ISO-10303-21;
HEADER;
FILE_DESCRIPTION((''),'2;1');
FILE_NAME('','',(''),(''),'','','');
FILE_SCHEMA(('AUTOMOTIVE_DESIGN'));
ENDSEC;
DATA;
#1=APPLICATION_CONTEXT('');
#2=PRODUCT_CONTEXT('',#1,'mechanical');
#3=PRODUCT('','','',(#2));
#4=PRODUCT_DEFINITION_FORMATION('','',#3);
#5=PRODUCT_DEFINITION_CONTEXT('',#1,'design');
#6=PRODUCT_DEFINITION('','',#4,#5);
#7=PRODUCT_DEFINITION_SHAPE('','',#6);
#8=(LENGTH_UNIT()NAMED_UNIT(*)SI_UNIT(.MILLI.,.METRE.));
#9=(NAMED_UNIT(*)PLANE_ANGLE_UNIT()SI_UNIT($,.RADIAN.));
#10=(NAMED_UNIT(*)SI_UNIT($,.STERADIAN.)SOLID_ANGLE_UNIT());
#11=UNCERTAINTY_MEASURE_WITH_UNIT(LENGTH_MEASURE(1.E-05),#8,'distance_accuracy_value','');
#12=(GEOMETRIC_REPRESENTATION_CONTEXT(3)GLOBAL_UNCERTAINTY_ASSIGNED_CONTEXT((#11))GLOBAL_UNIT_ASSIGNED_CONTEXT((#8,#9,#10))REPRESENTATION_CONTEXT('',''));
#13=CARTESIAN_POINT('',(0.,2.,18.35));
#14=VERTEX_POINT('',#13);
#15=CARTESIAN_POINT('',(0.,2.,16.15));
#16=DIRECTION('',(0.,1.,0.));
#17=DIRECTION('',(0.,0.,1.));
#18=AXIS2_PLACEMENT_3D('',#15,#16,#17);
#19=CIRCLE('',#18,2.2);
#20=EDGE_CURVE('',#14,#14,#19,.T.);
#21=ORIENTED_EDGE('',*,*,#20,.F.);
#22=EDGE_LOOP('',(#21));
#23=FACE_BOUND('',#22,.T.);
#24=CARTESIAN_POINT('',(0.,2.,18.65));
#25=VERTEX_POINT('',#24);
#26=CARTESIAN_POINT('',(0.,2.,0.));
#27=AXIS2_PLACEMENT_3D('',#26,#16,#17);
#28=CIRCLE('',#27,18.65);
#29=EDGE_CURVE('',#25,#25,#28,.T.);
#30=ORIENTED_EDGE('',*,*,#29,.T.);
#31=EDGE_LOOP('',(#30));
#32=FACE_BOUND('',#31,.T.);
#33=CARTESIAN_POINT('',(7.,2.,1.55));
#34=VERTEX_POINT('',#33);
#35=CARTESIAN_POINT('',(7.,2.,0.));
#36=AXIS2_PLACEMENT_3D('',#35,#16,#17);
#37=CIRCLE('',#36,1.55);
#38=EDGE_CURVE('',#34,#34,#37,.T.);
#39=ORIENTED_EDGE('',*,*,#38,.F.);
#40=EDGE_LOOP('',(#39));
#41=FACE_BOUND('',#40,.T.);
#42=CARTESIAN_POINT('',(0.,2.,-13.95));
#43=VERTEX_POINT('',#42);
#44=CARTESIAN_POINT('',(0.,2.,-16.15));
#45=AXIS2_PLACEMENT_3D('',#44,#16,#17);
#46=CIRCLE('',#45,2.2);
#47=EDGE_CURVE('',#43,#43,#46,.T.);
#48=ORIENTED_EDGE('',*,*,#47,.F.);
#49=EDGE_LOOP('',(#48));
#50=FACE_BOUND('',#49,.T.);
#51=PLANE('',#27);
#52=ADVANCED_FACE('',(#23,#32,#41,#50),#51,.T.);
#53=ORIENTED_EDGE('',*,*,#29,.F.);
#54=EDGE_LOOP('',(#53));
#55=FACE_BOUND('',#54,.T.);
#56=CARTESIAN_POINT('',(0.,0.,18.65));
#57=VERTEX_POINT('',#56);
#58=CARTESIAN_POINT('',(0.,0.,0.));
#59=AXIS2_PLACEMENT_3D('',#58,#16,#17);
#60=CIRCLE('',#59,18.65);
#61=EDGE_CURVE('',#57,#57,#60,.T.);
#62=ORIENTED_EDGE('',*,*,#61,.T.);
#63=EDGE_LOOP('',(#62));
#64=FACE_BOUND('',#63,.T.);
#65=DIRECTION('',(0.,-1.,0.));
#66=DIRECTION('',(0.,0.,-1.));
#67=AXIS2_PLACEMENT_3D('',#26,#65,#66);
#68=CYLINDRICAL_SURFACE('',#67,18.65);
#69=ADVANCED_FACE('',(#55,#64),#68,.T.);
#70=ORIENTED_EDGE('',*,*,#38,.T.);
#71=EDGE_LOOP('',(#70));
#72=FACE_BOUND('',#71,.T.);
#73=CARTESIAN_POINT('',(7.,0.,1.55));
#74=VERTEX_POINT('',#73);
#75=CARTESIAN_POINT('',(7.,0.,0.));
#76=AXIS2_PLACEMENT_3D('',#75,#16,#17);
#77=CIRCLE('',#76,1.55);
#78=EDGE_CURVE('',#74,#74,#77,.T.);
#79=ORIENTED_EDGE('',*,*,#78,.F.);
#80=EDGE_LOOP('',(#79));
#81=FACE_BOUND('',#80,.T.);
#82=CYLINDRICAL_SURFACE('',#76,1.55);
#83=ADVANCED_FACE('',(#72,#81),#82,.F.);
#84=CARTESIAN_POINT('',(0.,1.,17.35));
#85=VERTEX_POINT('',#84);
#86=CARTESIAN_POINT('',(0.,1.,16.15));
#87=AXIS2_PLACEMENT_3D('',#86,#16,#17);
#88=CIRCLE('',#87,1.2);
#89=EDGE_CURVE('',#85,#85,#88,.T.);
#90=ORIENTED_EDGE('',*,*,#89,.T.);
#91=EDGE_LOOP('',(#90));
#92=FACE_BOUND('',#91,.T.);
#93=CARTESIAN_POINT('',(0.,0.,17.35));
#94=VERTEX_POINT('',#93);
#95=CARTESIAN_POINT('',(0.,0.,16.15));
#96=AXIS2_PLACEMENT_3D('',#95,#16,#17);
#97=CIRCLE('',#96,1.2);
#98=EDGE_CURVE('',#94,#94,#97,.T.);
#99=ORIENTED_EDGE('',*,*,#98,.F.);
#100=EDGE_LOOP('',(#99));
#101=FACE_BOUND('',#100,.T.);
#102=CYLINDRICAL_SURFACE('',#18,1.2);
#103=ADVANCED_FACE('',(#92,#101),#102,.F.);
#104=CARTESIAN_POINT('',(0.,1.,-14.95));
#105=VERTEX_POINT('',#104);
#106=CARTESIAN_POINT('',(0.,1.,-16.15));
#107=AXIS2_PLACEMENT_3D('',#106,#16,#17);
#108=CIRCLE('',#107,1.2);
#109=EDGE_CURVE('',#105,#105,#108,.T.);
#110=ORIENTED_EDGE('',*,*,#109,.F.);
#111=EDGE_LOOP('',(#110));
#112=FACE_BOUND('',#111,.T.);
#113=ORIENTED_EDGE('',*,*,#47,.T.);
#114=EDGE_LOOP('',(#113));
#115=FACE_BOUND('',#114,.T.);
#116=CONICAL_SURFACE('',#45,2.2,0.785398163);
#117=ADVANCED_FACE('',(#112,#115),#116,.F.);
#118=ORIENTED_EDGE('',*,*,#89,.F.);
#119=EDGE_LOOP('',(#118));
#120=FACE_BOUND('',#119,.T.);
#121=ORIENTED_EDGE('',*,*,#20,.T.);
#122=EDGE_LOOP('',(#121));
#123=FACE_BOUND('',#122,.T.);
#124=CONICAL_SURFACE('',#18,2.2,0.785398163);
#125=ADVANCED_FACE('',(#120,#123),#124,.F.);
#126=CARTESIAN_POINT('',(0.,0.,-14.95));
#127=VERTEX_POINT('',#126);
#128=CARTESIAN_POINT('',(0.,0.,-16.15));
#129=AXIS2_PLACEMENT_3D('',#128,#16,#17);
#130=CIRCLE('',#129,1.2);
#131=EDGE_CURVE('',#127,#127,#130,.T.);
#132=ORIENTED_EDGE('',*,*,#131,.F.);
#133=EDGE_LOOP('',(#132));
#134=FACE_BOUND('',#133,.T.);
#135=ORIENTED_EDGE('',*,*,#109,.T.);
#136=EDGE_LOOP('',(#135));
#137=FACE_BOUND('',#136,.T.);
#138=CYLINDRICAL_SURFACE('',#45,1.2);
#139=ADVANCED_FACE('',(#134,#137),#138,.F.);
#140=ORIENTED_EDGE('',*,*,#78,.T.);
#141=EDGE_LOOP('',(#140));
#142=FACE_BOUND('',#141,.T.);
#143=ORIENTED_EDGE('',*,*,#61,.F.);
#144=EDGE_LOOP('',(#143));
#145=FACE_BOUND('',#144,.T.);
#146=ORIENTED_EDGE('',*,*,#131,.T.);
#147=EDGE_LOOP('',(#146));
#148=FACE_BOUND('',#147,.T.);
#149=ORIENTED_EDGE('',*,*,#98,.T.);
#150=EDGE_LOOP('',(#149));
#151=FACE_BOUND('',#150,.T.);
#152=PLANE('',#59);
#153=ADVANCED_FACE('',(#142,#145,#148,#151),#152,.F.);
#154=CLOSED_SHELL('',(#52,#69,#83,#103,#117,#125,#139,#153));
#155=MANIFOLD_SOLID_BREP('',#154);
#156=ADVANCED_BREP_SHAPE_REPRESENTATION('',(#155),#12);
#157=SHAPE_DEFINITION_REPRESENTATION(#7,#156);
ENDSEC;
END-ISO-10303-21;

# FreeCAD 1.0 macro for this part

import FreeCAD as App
import Part
import Sketcher

V = App.Vector
Q = App.Units.Quantity

doc = App.newDocument("Part")
body = doc.addObject("PartDesign::Body", "Body")

sketch1 = body.newObject("Sketcher::SketchObject", "Sketch")
sketch1.AttachmentSupport = (doc.getObject("XZ_Plane"), [""])
sketch1.MapMode = "FlatFace"
sketch1.addGeometry(Part.Circle(V(0, 0, 0), V(0, 0, 1), 19), False)
sketch1.addConstraint([
    Sketcher.Constraint("Coincident", 0, 3, -1, 1),
    Sketcher.Constraint("Diameter", 0, Q("37.3 mm")),
])
pad1 = body.newObject("PartDesign::Pad", "Pad")
pad1.Profile = sketch1
pad1.Length = 2
pad1.Reversed = True

sketch2 = body.newObject("Sketcher::SketchObject", "Sketch001")
sketch2.AttachmentSupport = (doc.getObject("XZ_Plane"), [""])
sketch2.MapMode = "FlatFace"
sketch2.AttachmentOffset = App.Placement(V(0, 0, -2), App.Rotation())
sketch2.addGeometry(Part.Circle(V(7, 0, 0), V(0, 0, 1), 1.6), False)
sketch2.addConstraint([
    Sketcher.Constraint("PointOnObject", 0, 3, -1),
    Sketcher.Constraint("Diameter", 0, Q("3.1 mm")),
    Sketcher.Constraint("DistanceX", -1, 1, 0, 3, Q("7 mm")),
])
pocket1 = body.newObject("PartDesign::Pocket", "Pocket")
pocket1.Profile = sketch2
pocket1.Length = 2
pocket1.Reversed = True

sketch3 = body.newObject("Sketcher::SketchObject", "Sketch002")
sketch3.AttachmentSupport = (doc.getObject("YZ_Plane"), [""])
sketch3.MapMode = "FlatFace"
sketch3.addGeometry([
    Part.LineSegment(V(0, -16.1, 0), V(2, -16.1, 0)),
    Part.LineSegment(V(2, -16.1, 0), V(2, -13.9, 0)),
    Part.LineSegment(V(2, -13.9, 0), V(1, -14.9, 0)),
    Part.LineSegment(V(1, -14.9, 0), V(0, -14.9, 0)),
    Part.LineSegment(V(0, -14.9, 0), V(0, -16.1, 0)),
], False)
sketch3.addGeometry(Part.LineSegment(V(2, -16.1, 0), V(0, -16.1, 0)), True)
sketch3.addConstraint([
    Sketcher.Constraint("Coincident", 0, 2, 1, 1),
    Sketcher.Constraint("Coincident", 1, 2, 2, 1),
    Sketcher.Constraint("Coincident", 2, 2, 3, 1),
    Sketcher.Constraint("Coincident", 3, 2, 4, 1),
    Sketcher.Constraint("Coincident", 4, 2, 0, 1),
    Sketcher.Constraint("Horizontal", 0),
    Sketcher.Constraint("Vertical", 1),
    Sketcher.Constraint("Horizontal", 3),
    Sketcher.Constraint("Vertical", 4),
    Sketcher.Constraint("Horizontal", 5),
    Sketcher.Constraint("Coincident", 5, 1, 0, 2),
    Sketcher.Constraint("PointOnObject", 3, 2, -2),
    Sketcher.Constraint("PointOnObject", 5, 2, -2),
    Sketcher.Constraint("DistanceX", 0, 1, 0, 2, Q("2 mm")),
    Sketcher.Constraint("DistanceX", 3, 2, 3, 1, Q("1 mm")),
    Sketcher.Constraint("Angle", 2, Q("-135 deg")),
    Sketcher.Constraint("DistanceY", 1, 1, 1, 2, Q("2.2 mm")),
    Sketcher.Constraint("DistanceY", 0, 2, -1, 1, Q("16.15 mm")),
])
groove = body.newObject("PartDesign::Groove", "Groove")
groove.Profile = sketch3
groove.ReferenceAxis = (sketch3, ["Axis0"])
groove.Angle = 360
doc.recompute()

linearpattern = body.newObject("PartDesign::LinearPattern", "LinearPattern")
linearpattern.Originals = [groove]
linearpattern.Direction = (doc.getObject("Z_Axis"), [""])
linearpattern.Mode = "offset"
linearpattern.Offset = 32.3
linearpattern.Occurrences = 2
body.Tip = linearpattern

doc.recompute()
